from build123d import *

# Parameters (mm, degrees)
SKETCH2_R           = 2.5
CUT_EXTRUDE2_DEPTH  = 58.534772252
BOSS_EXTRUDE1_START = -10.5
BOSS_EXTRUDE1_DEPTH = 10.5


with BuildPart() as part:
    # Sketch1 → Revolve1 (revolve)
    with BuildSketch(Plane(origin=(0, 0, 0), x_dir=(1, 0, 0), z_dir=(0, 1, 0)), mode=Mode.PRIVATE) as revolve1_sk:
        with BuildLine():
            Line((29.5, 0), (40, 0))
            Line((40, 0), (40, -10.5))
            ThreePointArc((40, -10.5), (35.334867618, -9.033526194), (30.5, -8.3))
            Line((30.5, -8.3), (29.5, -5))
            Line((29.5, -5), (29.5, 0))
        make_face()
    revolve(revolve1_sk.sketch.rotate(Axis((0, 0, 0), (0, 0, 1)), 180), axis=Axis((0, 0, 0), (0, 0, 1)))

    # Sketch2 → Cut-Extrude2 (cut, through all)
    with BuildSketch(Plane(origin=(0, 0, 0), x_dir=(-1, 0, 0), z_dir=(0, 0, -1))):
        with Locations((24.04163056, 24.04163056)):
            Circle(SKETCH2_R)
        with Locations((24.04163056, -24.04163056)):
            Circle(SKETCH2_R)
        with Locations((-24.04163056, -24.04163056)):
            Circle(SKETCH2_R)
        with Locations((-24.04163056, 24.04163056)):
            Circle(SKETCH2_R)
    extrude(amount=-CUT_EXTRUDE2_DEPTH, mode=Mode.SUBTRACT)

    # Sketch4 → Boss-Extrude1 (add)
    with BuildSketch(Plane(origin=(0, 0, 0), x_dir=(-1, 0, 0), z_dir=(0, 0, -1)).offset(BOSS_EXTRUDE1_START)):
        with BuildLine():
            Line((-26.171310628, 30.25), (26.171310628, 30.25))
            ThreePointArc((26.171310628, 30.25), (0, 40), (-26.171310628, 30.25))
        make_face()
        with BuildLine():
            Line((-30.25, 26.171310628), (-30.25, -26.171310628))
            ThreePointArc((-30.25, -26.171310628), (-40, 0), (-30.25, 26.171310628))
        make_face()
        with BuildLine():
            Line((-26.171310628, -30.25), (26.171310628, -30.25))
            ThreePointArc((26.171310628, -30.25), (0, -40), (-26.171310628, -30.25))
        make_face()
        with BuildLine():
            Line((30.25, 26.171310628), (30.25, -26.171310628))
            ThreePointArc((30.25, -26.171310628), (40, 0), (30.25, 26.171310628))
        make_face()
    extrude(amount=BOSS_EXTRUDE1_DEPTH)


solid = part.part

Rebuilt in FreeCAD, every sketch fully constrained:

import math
import FreeCAD as App
import Part
import Sketcher

V = App.Vector

doc = App.newDocument("Part")
body = doc.addObject("PartDesign::Body", "Body")

sketch1 = body.newObject("Sketcher::SketchObject", "Sketch")
sketch1.AttachmentSupport = (doc.getObject("XZ_Plane"), [""])
sketch1.MapMode = "FlatFace"
sketch1.addGeometry(Part.LineSegment(V(40, 0, 0), V(29.5, 0, 0)), False)
sketch1.addGeometry(Part.LineSegment(V(29.5, 0, 0), V(29.5, 5, 0)), False)
sketch1.addGeometry(Part.LineSegment(V(29.5, 5, 0), V(30.5, 8.3, 0)), False)
sketch1.addGeometry(Part.ArcOfCircle(Part.Circle(V(28.163684, 40, 0), V(0, 0, 1), 31.785978), math.radians(-85.784875), math.radians(-68.137812)), False)
sketch1.addGeometry(Part.LineSegment(V(40, 10.5, 0), V(40, 0, 0)), False)
sketch1.addConstraint(Sketcher.Constraint("Coincident", 0, 2, 1, 1))
sketch1.addConstraint(Sketcher.Constraint("Coincident", 1, 2, 2, 1))
sketch1.addConstraint(Sketcher.Constraint("Coincident", 2, 2, 3, 1))
sketch1.addConstraint(Sketcher.Constraint("Coincident", 3, 2, 4, 1))
sketch1.addConstraint(Sketcher.Constraint("Coincident", 4, 2, 0, 1))
sketch1.addConstraint(Sketcher.Constraint("Horizontal", 0))
sketch1.addConstraint(Sketcher.Constraint("Vertical", 1))
sketch1.addConstraint(Sketcher.Constraint("Vertical", 4))
sketch1.addConstraint(Sketcher.Constraint("PointOnObject", 0, 2, -1))
sketch1.addConstraint(Sketcher.Constraint("Equal", 0, 4))
sketch1.addConstraint(Sketcher.Constraint("DistanceY", 1, 1, 1, 2, 5.0))
sketch1.addConstraint(Sketcher.Constraint("DistanceX", 0, 2, 0, 1, 10.5))
sketch1.addConstraint(Sketcher.Constraint("DistanceY", -1, 1, 3, 3, 40.0))
sketch1.addConstraint(Sketcher.Constraint("DistanceX", -1, 1, 3, 2, 40.0))
sketch1.addConstraint(Sketcher.Constraint("DistanceX", 1, 2, 2, 2, 1.0))
sketch1.addConstraint(Sketcher.Constraint("DistanceY", -1, 1, 2, 2, 8.3))
revolution = body.newObject("PartDesign::Revolution", "Revolution")
revolution.Profile = sketch1
revolution.ReferenceAxis = (sketch1, ["V_Axis"])
revolution.Angle = 360

sketch2 = body.newObject("Sketcher::SketchObject", "Sketch001")
sketch2.AttachmentSupport = (doc.getObject("XY_Plane"), [""])
sketch2.MapMode = "FlatFace"
sketch2.addGeometry(Part.Circle(V(-24.041631, 24.041631, 0), V(0, 0, 1), 2.5), False)
sketch2.addGeometry(Part.Circle(V(-24.041631, -24.041631, 0), V(0, 0, 1), 2.5), False)
sketch2.addGeometry(Part.Circle(V(24.041631, -24.041631, 0), V(0, 0, 1), 2.5), False)
sketch2.addGeometry(Part.Circle(V(24.041631, 24.041631, 0), V(0, 0, 1), 2.5), False)
sketch2.addConstraint(Sketcher.Constraint("Equal", 0, 1))
sketch2.addConstraint(Sketcher.Constraint("Equal", 1, 2))
sketch2.addConstraint(Sketcher.Constraint("Equal", 2, 3))
sketch2.addConstraint(Sketcher.Constraint("Symmetric", 0, 3, 2, 3, -1, 1))
sketch2.addConstraint(Sketcher.Constraint("Symmetric", 1, 3, 3, 3, -1, 1))
sketch2.addConstraint(Sketcher.Constraint("Symmetric", 1, 3, 2, 3, -2))
sketch2.addConstraint(Sketcher.Constraint("Diameter", 0, 5.0))
sketch2.addConstraint(Sketcher.Constraint("DistanceX", 0, 3, -1, 1, 24.041631))
sketch2.addConstraint(Sketcher.Constraint("DistanceY", -1, 1, 0, 3, 24.041631))
pocket1 = body.newObject("PartDesign::Pocket", "Pocket")
pocket1.Profile = sketch2
pocket1.Type = "ThroughAll"
pocket1.Reversed = True

sketch3 = body.newObject("Sketcher::SketchObject", "Sketch002")
sketch3.AttachmentSupport = (doc.getObject("XY_Plane"), [""])
sketch3.MapMode = "FlatFace"
sketch3.AttachmentOffset = App.Placement(V(0, 0, 10.5), App.Rotation())
sketch3.addGeometry(Part.LineSegment(V(26.171311, 30.25, 0), V(-26.171311, 30.25, 0)), False)
sketch3.addGeometry(Part.ArcOfCircle(Part.Circle(V(0, 0, 0), V(0, 0, 1), 40), math.radians(49.134712), math.radians(130.865288)), False)
sketch3.addGeometry(Part.LineSegment(V(30.25, -26.171311, 0), V(30.25, 26.171311, 0)), False)
sketch3.addGeometry(Part.ArcOfCircle(Part.Circle(V(0, 0, 0), V(0, 0, 1), 40), math.radians(-40.865288), math.radians(40.865288)), False)
sketch3.addGeometry(Part.LineSegment(V(-26.171311, -30.25, 0), V(26.171311, -30.25, 0)), False)
sketch3.addGeometry(Part.ArcOfCircle(Part.Circle(V(0, 0, 0), V(0, 0, 1), 40), math.radians(-130.865288), math.radians(-49.134712)), False)
sketch3.addGeometry(Part.LineSegment(V(-30.25, 26.171311, 0), V(-30.25, -26.171311, 0)), False)
sketch3.addGeometry(Part.ArcOfCircle(Part.Circle(V(0, 0, 0), V(0, 0, 1), 40), math.radians(139.134712), math.radians(220.865288)), False)
sketch3.addConstraint(Sketcher.Constraint("Coincident", 0, 1, 1, 1))
sketch3.addConstraint(Sketcher.Constraint("Coincident", 1, 2, 0, 2))
sketch3.addConstraint(Sketcher.Constraint("Coincident", 2, 1, 3, 1))
sketch3.addConstraint(Sketcher.Constraint("Coincident", 3, 2, 2, 2))
sketch3.addConstraint(Sketcher.Constraint("Coincident", 4, 1, 5, 1))
sketch3.addConstraint(Sketcher.Constraint("Coincident", 5, 2, 4, 2))
sketch3.addConstraint(Sketcher.Constraint("Coincident", 6, 1, 7, 1))
sketch3.addConstraint(Sketcher.Constraint("Coincident", 7, 2, 6, 2))
sketch3.addConstraint(Sketcher.Constraint("Horizontal", 0))
sketch3.addConstraint(Sketcher.Constraint("Vertical", 2))
sketch3.addConstraint(Sketcher.Constraint("Horizontal", 4))
sketch3.addConstraint(Sketcher.Constraint("Vertical", 6))
sketch3.addConstraint(Sketcher.Constraint("Coincident", 1, 3, -1, 1))
sketch3.addConstraint(Sketcher.Constraint("Coincident", 3, 3, -1, 1))
sketch3.addConstraint(Sketcher.Constraint("Coincident", 5, 3, -1, 1))
sketch3.addConstraint(Sketcher.Constraint("Coincident", 7, 3, -1, 1))
sketch3.addConstraint(Sketcher.Constraint("Equal", 1, 3))
sketch3.addConstraint(Sketcher.Constraint("Equal", 3, 5))
sketch3.addConstraint(Sketcher.Constraint("Equal", 5, 7))
sketch3.addConstraint(Sketcher.Constraint("Horizontal", 3, 2, 6, 1))
sketch3.addConstraint(Sketcher.Constraint("Vertical", 1, 2, 4, 1))
sketch3.addConstraint(Sketcher.Constraint("Equal", 4, 2))
sketch3.addConstraint(Sketcher.Constraint("Radius", 1, 40.0))
sketch3.addConstraint(Sketcher.Constraint("DistanceY", -1, 1, 0, 1, 30.25))
pad1 = body.newObject("PartDesign::Pad", "Pad")
pad1.Profile = sketch3
pad1.Length = 10.5
pad1.Reversed = True

doc.recompute()
